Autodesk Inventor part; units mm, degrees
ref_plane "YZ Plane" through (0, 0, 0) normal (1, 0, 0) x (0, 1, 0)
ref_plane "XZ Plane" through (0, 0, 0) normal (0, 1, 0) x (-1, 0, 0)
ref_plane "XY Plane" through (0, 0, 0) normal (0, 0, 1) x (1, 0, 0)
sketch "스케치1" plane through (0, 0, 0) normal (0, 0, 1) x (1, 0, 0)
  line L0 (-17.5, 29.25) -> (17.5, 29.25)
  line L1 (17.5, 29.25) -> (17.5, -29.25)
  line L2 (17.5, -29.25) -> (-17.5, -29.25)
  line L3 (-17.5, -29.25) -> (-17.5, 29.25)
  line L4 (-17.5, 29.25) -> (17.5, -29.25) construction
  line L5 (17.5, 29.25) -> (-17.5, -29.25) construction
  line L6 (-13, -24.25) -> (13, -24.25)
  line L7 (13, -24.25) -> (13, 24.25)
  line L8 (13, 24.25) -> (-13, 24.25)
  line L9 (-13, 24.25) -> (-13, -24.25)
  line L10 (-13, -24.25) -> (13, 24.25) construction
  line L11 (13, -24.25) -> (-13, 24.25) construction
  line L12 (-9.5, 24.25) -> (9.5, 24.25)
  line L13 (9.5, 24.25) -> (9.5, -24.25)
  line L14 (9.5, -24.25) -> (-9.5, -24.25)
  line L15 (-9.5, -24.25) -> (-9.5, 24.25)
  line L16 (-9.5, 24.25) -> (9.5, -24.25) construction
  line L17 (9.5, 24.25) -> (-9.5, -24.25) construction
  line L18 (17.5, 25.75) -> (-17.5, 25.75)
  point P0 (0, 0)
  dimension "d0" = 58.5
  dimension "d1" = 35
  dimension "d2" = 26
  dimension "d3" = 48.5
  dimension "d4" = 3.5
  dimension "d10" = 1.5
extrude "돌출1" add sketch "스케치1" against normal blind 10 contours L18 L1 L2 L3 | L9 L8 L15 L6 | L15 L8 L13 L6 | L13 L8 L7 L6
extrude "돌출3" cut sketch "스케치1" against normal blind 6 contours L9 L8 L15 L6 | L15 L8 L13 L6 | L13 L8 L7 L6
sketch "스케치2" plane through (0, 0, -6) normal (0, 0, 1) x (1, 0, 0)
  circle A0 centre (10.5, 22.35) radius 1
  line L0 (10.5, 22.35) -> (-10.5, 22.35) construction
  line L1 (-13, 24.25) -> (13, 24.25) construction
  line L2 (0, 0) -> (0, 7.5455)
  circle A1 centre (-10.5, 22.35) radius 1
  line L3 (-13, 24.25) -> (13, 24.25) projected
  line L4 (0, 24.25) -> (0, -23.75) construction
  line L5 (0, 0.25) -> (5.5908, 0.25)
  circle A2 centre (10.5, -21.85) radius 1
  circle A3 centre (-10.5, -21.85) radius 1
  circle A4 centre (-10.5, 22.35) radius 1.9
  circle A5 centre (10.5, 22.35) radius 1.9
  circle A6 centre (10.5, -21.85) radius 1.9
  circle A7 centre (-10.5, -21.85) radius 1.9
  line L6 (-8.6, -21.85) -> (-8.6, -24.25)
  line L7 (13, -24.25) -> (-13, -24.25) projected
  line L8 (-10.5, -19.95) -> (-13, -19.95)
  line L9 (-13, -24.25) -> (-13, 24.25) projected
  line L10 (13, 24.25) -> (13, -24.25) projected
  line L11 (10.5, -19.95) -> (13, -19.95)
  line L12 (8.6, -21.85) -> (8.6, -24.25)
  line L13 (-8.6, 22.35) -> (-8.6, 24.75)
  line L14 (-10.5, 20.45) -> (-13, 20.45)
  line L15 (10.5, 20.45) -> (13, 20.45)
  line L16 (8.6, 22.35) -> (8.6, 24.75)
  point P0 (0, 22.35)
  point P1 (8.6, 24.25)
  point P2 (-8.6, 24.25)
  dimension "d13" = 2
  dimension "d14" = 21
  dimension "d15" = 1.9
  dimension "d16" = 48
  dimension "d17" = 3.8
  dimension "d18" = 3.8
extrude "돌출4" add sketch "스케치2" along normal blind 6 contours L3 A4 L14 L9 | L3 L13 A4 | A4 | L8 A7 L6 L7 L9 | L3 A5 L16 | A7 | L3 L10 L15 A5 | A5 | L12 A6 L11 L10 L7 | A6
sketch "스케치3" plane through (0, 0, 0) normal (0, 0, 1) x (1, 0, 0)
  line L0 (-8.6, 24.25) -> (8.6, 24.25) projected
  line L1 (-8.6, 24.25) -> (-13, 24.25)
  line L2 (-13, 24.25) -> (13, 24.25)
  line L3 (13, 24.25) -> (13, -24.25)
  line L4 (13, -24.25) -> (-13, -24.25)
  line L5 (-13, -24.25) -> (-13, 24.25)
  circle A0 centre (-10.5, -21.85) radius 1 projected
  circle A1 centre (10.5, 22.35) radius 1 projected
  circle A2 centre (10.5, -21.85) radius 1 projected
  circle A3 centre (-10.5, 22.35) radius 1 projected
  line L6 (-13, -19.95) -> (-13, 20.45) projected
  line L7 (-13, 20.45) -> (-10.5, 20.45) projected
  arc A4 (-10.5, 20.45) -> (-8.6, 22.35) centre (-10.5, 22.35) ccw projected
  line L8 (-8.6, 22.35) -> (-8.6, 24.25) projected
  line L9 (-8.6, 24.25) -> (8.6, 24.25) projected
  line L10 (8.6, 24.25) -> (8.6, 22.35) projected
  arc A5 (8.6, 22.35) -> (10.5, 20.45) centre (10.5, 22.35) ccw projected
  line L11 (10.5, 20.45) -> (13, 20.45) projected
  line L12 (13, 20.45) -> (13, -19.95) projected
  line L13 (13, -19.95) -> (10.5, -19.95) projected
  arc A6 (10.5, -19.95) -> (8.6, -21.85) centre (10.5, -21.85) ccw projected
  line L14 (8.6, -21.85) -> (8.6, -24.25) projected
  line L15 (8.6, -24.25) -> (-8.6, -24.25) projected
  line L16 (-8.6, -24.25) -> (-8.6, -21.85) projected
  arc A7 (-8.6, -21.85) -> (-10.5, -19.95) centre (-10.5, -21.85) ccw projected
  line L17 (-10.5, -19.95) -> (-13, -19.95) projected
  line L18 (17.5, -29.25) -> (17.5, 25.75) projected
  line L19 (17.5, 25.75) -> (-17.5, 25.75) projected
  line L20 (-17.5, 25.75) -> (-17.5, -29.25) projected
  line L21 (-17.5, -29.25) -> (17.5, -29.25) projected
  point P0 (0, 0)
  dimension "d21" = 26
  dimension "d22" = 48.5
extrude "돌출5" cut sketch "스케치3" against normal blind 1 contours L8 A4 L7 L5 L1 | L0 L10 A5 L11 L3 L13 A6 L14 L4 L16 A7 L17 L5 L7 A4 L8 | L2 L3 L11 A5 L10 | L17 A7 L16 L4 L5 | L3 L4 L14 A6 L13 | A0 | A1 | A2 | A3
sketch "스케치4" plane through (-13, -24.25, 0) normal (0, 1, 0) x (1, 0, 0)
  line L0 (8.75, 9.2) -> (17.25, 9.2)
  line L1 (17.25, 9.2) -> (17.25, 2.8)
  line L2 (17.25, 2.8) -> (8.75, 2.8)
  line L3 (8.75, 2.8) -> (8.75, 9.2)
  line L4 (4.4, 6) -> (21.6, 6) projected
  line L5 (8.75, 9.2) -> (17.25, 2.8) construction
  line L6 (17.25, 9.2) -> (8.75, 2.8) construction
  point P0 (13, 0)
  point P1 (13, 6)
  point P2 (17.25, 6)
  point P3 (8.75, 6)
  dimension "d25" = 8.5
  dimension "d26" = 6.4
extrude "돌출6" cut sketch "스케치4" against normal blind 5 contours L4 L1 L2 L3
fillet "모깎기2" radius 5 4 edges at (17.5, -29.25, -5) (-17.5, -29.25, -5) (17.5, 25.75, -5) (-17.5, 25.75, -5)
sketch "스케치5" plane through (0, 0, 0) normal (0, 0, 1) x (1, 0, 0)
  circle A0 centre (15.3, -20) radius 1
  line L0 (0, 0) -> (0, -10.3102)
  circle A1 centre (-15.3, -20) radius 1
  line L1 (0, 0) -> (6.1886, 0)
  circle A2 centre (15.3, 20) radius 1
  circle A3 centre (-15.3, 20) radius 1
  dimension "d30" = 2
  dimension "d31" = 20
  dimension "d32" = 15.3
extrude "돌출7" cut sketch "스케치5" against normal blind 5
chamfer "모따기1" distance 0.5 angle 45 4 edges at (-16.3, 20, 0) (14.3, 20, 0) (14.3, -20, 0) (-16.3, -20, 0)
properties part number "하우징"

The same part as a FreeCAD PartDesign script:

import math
import FreeCAD as App
import Part
import Sketcher

V = App.Vector


def edges_at(feature, points):
    """Names of the edges that pass closest to the given points."""
    edges = feature.Shape.Edges
    near = lambda p: min(range(len(edges)), key=lambda i: edges[i].distToShape(Part.Vertex(*p))[0])
    return sorted({f"Edge{near(p) + 1}" for p in points})

doc = App.newDocument("Part")
body = doc.addObject("PartDesign::Body", "Body")

# Sketch on XY plane
sketch1 = doc.addObject("Sketcher::SketchObject", "Sketch")
body.addObject(sketch1)
sketch1.AttachmentSupport = (doc.XY_Plane, [""])
sketch1.MapMode = "FlatFace"
sketch1.addGeometry(Part.LineSegment(V(18, 26, 0), V(-18, 26, 0)), False)
sketch1.addGeometry(Part.LineSegment(V(-18, 26, 0), V(-18, -29, 0)), False)
sketch1.addGeometry(Part.LineSegment(V(-18, -29, 0), V(18, -29, 0)), False)
sketch1.addGeometry(Part.LineSegment(V(18, -29, 0), V(18, 26, 0)), False)
sketch1.addConstraint(Sketcher.Constraint("Coincident", 0, 2, 1, 1))
sketch1.addConstraint(Sketcher.Constraint("Coincident", 1, 2, 2, 1))
sketch1.addConstraint(Sketcher.Constraint("Coincident", 2, 2, 3, 1))
sketch1.addConstraint(Sketcher.Constraint("Coincident", 3, 2, 0, 1))
sketch1.addConstraint(Sketcher.Constraint("Horizontal", 0))
sketch1.addConstraint(Sketcher.Constraint("Vertical", 1))
sketch1.addConstraint(Sketcher.Constraint("Horizontal", 2))
sketch1.addConstraint(Sketcher.Constraint("Vertical", 3))
sketch1.addConstraint(Sketcher.Constraint("DistanceX", 0, 2, 0, 1, 35.0))
sketch1.addConstraint(Sketcher.Constraint("DistanceY", 1, 2, 1, 1, 55.0))
sketch1.addConstraint(Sketcher.Constraint("DistanceX", 0, 2, -1, 1, 17.5))
sketch1.addConstraint(Sketcher.Constraint("DistanceY", -1, 1, 0, 2, 25.75))
pad1 = doc.addObject("PartDesign::Pad", "Pad")
body.addObject(pad1)
pad1.Profile = sketch1
pad1.Length = 10
pad1.Reversed = True

# Sketch on XY plane
sketch2 = doc.addObject("Sketcher::SketchObject", "Sketch001")
body.addObject(sketch2)
sketch2.AttachmentSupport = (doc.XY_Plane, [""])
sketch2.MapMode = "FlatFace"
sketch2.addGeometry(Part.LineSegment(V(-13, 24, 0), V(-13, -24, 0)), False)
sketch2.addGeometry(Part.LineSegment(V(-13, -24, 0), V(13, -24, 0)), False)
sketch2.addGeometry(Part.LineSegment(V(13, -24, 0), V(13, 24, 0)), False)
sketch2.addGeometry(Part.LineSegment(V(13, 24, 0), V(-13, 24, 0)), False)
sketch2.addConstraint(Sketcher.Constraint("Coincident", 0, 2, 1, 1))
sketch2.addConstraint(Sketcher.Constraint("Coincident", 1, 2, 2, 1))
sketch2.addConstraint(Sketcher.Constraint("Coincident", 2, 2, 3, 1))
sketch2.addConstraint(Sketcher.Constraint("Coincident", 3, 2, 0, 1))
sketch2.addConstraint(Sketcher.Constraint("Vertical", 0))
sketch2.addConstraint(Sketcher.Constraint("Horizontal", 1))
sketch2.addConstraint(Sketcher.Constraint("Vertical", 2))
sketch2.addConstraint(Sketcher.Constraint("Horizontal", 3))
sketch2.addConstraint(Sketcher.Constraint("Symmetric", 0, 2, 2, 2, -1, 1))
sketch2.addConstraint(Sketcher.Constraint("DistanceX", 1, 1, 1, 2, 26.0))
sketch2.addConstraint(Sketcher.Constraint("DistanceY", 0, 2, 0, 1, 48.5))
pocket1 = doc.addObject("PartDesign::Pocket", "Pocket")
body.addObject(pocket1)
pocket1.Profile = sketch2
pocket1.Length = 6

# Sketch on XY plane
sketch3 = doc.addObject("Sketcher::SketchObject", "Sketch002")
body.addObject(sketch3)
sketch3.AttachmentSupport = (doc.XY_Plane, [""])
sketch3.MapMode = "FlatFace"
sketch3.AttachmentOffset = App.Placement(V(0, 0, -6), App.Rotation())
sketch3.addGeometry(Part.LineSegment(V(-13, 24.2, 0), V(-13, 20.4, 0)), False)
sketch3.addGeometry(Part.LineSegment(V(-13, 20.4, 0), V(-10.5, 20.4, 0)), False)
sketch3.addGeometry(Part.ArcOfCircle(Part.Circle(V(-10.5, 22.4, 0), V(0, 0, 1), 1.9), math.radians(-90), math.radians(0)), False)
sketch3.addGeometry(Part.LineSegment(V(-8.6, 22.4, 0), V(-8.6, 24.2, 0)), False)
sketch3.addGeometry(Part.LineSegment(V(-8.6, 24.2, 0), V(-13, 24.2, 0)), False)
sketch3.addGeometry(Part.Circle(V(-10.5, 22.4, 0), V(0, 0, 1), 1), False)
sketch3.addGeometry(Part.LineSegment(V(-10.5, -19.9, 0), V(-13, -19.9, 0)), False)
sketch3.addGeometry(Part.LineSegment(V(-13, -19.9, 0), V(-13, -24.2, 0)), False)
sketch3.addGeometry(Part.LineSegment(V(-13, -24.2, 0), V(-8.6, -24.2, 0)), False)
sketch3.addGeometry(Part.LineSegment(V(-8.6, -24.2, 0), V(-8.6, -21.9, 0)), False)
sketch3.addGeometry(Part.ArcOfCircle(Part.Circle(V(-10.5, -21.9, 0), V(0, 0, 1), 1.9), math.radians(0), math.radians(90)), False)
sketch3.addGeometry(Part.Circle(V(-10.5, -21.9, 0), V(0, 0, 1), 1), False)
sketch3.addGeometry(Part.LineSegment(V(8.6, 24.2, 0), V(8.6, 22.4, 0)), False)
sketch3.addGeometry(Part.ArcOfCircle(Part.Circle(V(10.5, 22.4, 0), V(0, 0, 1), 1.9), math.radians(180), math.radians(270)), False)
sketch3.addGeometry(Part.LineSegment(V(10.5, 20.4, 0), V(13, 20.4, 0)), False)
sketch3.addGeometry(Part.LineSegment(V(13, 20.4, 0), V(13, 24.2, 0)), False)
sketch3.addGeometry(Part.LineSegment(V(13, 24.2, 0), V(8.6, 24.2, 0)), False)
sketch3.addGeometry(Part.Circle(V(10.5, 22.4, 0), V(0, 0, 1), 1), False)
sketch3.addGeometry(Part.LineSegment(V(8.6, -21.9, 0), V(8.6, -24.2, 0)), False)
sketch3.addGeometry(Part.LineSegment(V(8.6, -24.2, 0), V(13, -24.2, 0)), False)
sketch3.addGeometry(Part.LineSegment(V(13, -24.2, 0), V(13, -19.9, 0)), False)
sketch3.addGeometry(Part.LineSegment(V(13, -19.9, 0), V(10.5, -19.9, 0)), False)
sketch3.addGeometry(Part.ArcOfCircle(Part.Circle(V(10.5, -21.9, 0), V(0, 0, 1), 1.9), math.radians(90), math.radians(180)), False)
sketch3.addGeometry(Part.Circle(V(10.5, -21.9, 0), V(0, 0, 1), 1), False)
sketch3.addConstraint(Sketcher.Constraint("Coincident", 0, 2, 1, 1))
sketch3.addConstraint(Sketcher.Constraint("Tangent", 1, 2, 2, 1))
sketch3.addConstraint(Sketcher.Constraint("Tangent", 2, 2, 3, 1))
sketch3.addConstraint(Sketcher.Constraint("Coincident", 3, 2, 4, 1))
sketch3.addConstraint(Sketcher.Constraint("Coincident", 4, 2, 0, 1))
sketch3.addConstraint(Sketcher.Constraint("Coincident", 6, 2, 7, 1))
sketch3.addConstraint(Sketcher.Constraint("Coincident", 7, 2, 8, 1))
sketch3.addConstraint(Sketcher.Constraint("Coincident", 8, 2, 9, 1))
sketch3.addConstraint(Sketcher.Constraint("Tangent", 9, 2, 10, 1))
sketch3.addConstraint(Sketcher.Constraint("Tangent", 10, 2, 6, 1))
sketch3.addConstraint(Sketcher.Constraint("Tangent", 12, 2, 13, 1))
sketch3.addConstraint(Sketcher.Constraint("Tangent", 13, 2, 14, 1))
sketch3.addConstraint(Sketcher.Constraint("Coincident", 14, 2, 15, 1))
sketch3.addConstraint(Sketcher.Constraint("Coincident", 15, 2, 16, 1))
sketch3.addConstraint(Sketcher.Constraint("Coincident", 16, 2, 12, 1))
sketch3.addConstraint(Sketcher.Constraint("Coincident", 18, 2, 19, 1))
sketch3.addConstraint(Sketcher.Constraint("Coincident", 19, 2, 20, 1))
sketch3.addConstraint(Sketcher.Constraint("Coincident", 20, 2, 21, 1))
sketch3.addConstraint(Sketcher.Constraint("Tangent", 21, 2, 22, 1))
sketch3.addConstraint(Sketcher.Constraint("Tangent", 22, 2, 18, 1))
sketch3.addConstraint(Sketcher.Constraint("Vertical", 0))
sketch3.addConstraint(Sketcher.Constraint("Horizontal", 1))
sketch3.addConstraint(Sketcher.Constraint("Vertical", 3))
sketch3.addConstraint(Sketcher.Constraint("Horizontal", 4))
sketch3.addConstraint(Sketcher.Constraint("Horizontal", 6))
sketch3.addConstraint(Sketcher.Constraint("Vertical", 7))
sketch3.addConstraint(Sketcher.Constraint("Horizontal", 8))
sketch3.addConstraint(Sketcher.Constraint("Vertical", 9))
sketch3.addConstraint(Sketcher.Constraint("Vertical", 12))
sketch3.addConstraint(Sketcher.Constraint("Horizontal", 14))
sketch3.addConstraint(Sketcher.Constraint("Vertical", 15))
sketch3.addConstraint(Sketcher.Constraint("Horizontal", 16))
sketch3.addConstraint(Sketcher.Constraint("Vertical", 18))
sketch3.addConstraint(Sketcher.Constraint("Horizontal", 19))
sketch3.addConstraint(Sketcher.Constraint("Vertical", 20))
sketch3.addConstraint(Sketcher.Constraint("Horizontal", 21))
sketch3.addConstraint(Sketcher.Constraint("Coincident", 5, 3, 2, 3))
sketch3.addConstraint(Sketcher.Constraint("Coincident", 11, 3, 10, 3))
sketch3.addConstraint(Sketcher.Constraint("Coincident", 17, 3, 13, 3))
sketch3.addConstraint(Sketcher.Constraint("Coincident", 23, 3, 22, 3))
sketch3.addConstraint(Sketcher.Constraint("Equal", 2, 10))
sketch3.addConstraint(Sketcher.Constraint("Equal", 5, 11))
sketch3.addConstraint(Sketcher.Constraint("Equal", 10, 13))
sketch3.addConstraint(Sketcher.Constraint("Equal", 11, 17))
sketch3.addConstraint(Sketcher.Constraint("Equal", 13, 22))
sketch3.addConstraint(Sketcher.Constraint("Equal", 17, 23))
sketch3.addConstraint(Sketcher.Constraint("Symmetric", 7, 2, 15, 2, -1, 1))
sketch3.addConstraint(Sketcher.Constraint("Symmetric", 3, 2, 18, 2, -1, 1))
sketch3.addConstraint(Sketcher.Constraint("Symmetric", 2, 3, 13, 3, -2))
sketch3.addConstraint(Sketcher.Constraint("Symmetric", 10, 3, 22, 3, -2))
sketch3.addConstraint(Sketcher.Constraint("Symmetric", 4, 2, 15, 2, -2))
sketch3.addConstraint(Sketcher.Constraint("Vertical", 15, 2, 19, 2))
sketch3.addConstraint(Sketcher.Constraint("Diameter", 5, 2.0))
sketch3.addConstraint(Sketcher.Constraint("Radius", 2, 1.9))
sketch3.addConstraint(Sketcher.Constraint("DistanceY", 0, 2, 0, 1, 3.8))
sketch3.addConstraint(Sketcher.Constraint("DistanceX", 2, 3, 13, 3, 21.0))
sketch3.addConstraint(Sketcher.Constraint("DistanceX", 1, 1, 1, 2, 2.5))
sketch3.addConstraint(Sketcher.Constraint("DistanceY", 7, 2, 7, 1, 4.3))
sketch3.addConstraint(Sketcher.Constraint("DistanceY", 10, 3, 2, 3, 44.2))
pad2 = doc.addObject("PartDesign::Pad", "Pad001")
body.addObject(pad2)
pad2.Profile = sketch3
pad2.Length = 6

# Sketch on XY plane
sketch4 = doc.addObject("Sketcher::SketchObject", "Sketch003")
body.addObject(sketch4)
sketch4.AttachmentSupport = (doc.XY_Plane, [""])
sketch4.MapMode = "FlatFace"
sketch4.addGeometry(Part.LineSegment(V(-13, 24, 0), V(-13, -24, 0)), False)
sketch4.addGeometry(Part.LineSegment(V(-13, -24, 0), V(13, -24, 0)), False)
sketch4.addGeometry(Part.LineSegment(V(13, -24, 0), V(13, 24, 0)), False)
sketch4.addGeometry(Part.LineSegment(V(13, 24, 0), V(-13, 24, 0)), False)
sketch4.addConstraint(Sketcher.Constraint("Coincident", 0, 2, 1, 1))
sketch4.addConstraint(Sketcher.Constraint("Coincident", 1, 2, 2, 1))
sketch4.addConstraint(Sketcher.Constraint("Coincident", 2, 2, 3, 1))
sketch4.addConstraint(Sketcher.Constraint("Coincident", 3, 2, 0, 1))
sketch4.addConstraint(Sketcher.Constraint("Vertical", 0))
sketch4.addConstraint(Sketcher.Constraint("Horizontal", 1))
sketch4.addConstraint(Sketcher.Constraint("Vertical", 2))
sketch4.addConstraint(Sketcher.Constraint("Horizontal", 3))
sketch4.addConstraint(Sketcher.Constraint("Symmetric", 0, 2, 2, 2, -1, 1))
sketch4.addConstraint(Sketcher.Constraint("DistanceX", 1, 1, 1, 2, 26.0))
sketch4.addConstraint(Sketcher.Constraint("DistanceY", 0, 2, 0, 1, 48.5))
pocket2 = doc.addObject("PartDesign::Pocket", "Pocket001")
body.addObject(pocket2)
pocket2.Profile = sketch4
pocket2.Length = 1

# Sketch on XZ plane
sketch5 = doc.addObject("Sketcher::SketchObject", "Sketch004")
body.addObject(sketch5)
sketch5.AttachmentSupport = (doc.XZ_Plane, [""])
sketch5.MapMode = "FlatFace"
sketch5.AttachmentOffset = App.Placement(V(0, 0, 24.25), App.Rotation())
sketch5.addGeometry(Part.LineSegment(V(4.2, -6, 0), V(-4.2, -6, 0)), False)
sketch5.addGeometry(Part.LineSegment(V(-4.2, -6, 0), V(-4.2, -2.8, 0)), False)
sketch5.addGeometry(Part.LineSegment(V(-4.2, -2.8, 0), V(4.2, -2.8, 0)), False)
sketch5.addGeometry(Part.LineSegment(V(4.2, -2.8, 0), V(4.2, -6, 0)), False)
sketch5.addConstraint(Sketcher.Constraint("Coincident", 0, 2, 1, 1))
sketch5.addConstraint(Sketcher.Constraint("Coincident", 1, 2, 2, 1))
sketch5.addConstraint(Sketcher.Constraint("Coincident", 2, 2, 3, 1))
sketch5.addConstraint(Sketcher.Constraint("Coincident", 3, 2, 0, 1))
sketch5.addConstraint(Sketcher.Constraint("Horizontal", 0))
sketch5.addConstraint(Sketcher.Constraint("Vertical", 1))
sketch5.addConstraint(Sketcher.Constraint("Horizontal", 2))
sketch5.addConstraint(Sketcher.Constraint("Vertical", 3))
sketch5.addConstraint(Sketcher.Constraint("DistanceX", 0, 2, 0, 1, 8.5))
sketch5.addConstraint(Sketcher.Constraint("DistanceY", 1, 1, 1, 2, 3.2))
sketch5.addConstraint(Sketcher.Constraint("DistanceY", 0, 2, -1, 1, 6.0))
sketch5.addConstraint(Sketcher.Constraint("DistanceX", 0, 2, -1, 1, 4.25))
pocket3 = doc.addObject("PartDesign::Pocket", "Pocket002")
body.addObject(pocket3)
pocket3.Profile = sketch5
pocket3.Length = 5
pocket3.Reversed = True
doc.recompute()

fillet = doc.addObject("PartDesign::Fillet", "Fillet")
body.addObject(fillet)
fillet.Base = (pocket3, edges_at(pocket3, [
    (17.5, -29.25, -5),
    (-17.5, -29.25, -5),
    (17.5, 25.75, -5),
    (-17.5, 25.75, -5),
]))
fillet.Radius = 5

# Sketch on XY plane
sketch6 = doc.addObject("Sketcher::SketchObject", "Sketch005")
body.addObject(sketch6)
sketch6.AttachmentSupport = (doc.XY_Plane, [""])
sketch6.MapMode = "FlatFace"
sketch6.addGeometry(Part.Circle(V(15.3, -20, 0), V(0, 0, 1), 1), False)
sketch6.addGeometry(Part.Circle(V(-15.3, -20, 0), V(0, 0, 1), 1), False)
sketch6.addGeometry(Part.Circle(V(15.3, 20, 0), V(0, 0, 1), 1), False)
sketch6.addGeometry(Part.Circle(V(-15.3, 20, 0), V(0, 0, 1), 1), False)
sketch6.addConstraint(Sketcher.Constraint("Equal", 0, 1))
sketch6.addConstraint(Sketcher.Constraint("Equal", 1, 2))
sketch6.addConstraint(Sketcher.Constraint("Equal", 2, 3))
sketch6.addConstraint(Sketcher.Constraint("Symmetric", 1, 3, 2, 3, -1, 1))
sketch6.addConstraint(Sketcher.Constraint("Symmetric", 0, 3, 3, 3, -1, 1))
sketch6.addConstraint(Sketcher.Constraint("Symmetric", 0, 3, 1, 3, -2))
sketch6.addConstraint(Sketcher.Constraint("Diameter", 0, 2.0))
sketch6.addConstraint(Sketcher.Constraint("DistanceY", 0, 3, -1, 1, 20.0))
sketch6.addConstraint(Sketcher.Constraint("DistanceX", -1, 1, 0, 3, 15.3))
pocket4 = doc.addObject("PartDesign::Pocket", "Pocket003")
body.addObject(pocket4)
pocket4.Profile = sketch6
pocket4.Length = 5
doc.recompute()

chamfer = doc.addObject("PartDesign::Chamfer", "Chamfer")
body.addObject(chamfer)
chamfer.Base = (pocket4, edges_at(pocket4, [
    (-16.3, 20, 0),
    (14.3, 20, 0),
    (14.3, -20, 0),
    (-16.3, -20, 0),
]))
chamfer.Size = 0.5

doc.recompute()
